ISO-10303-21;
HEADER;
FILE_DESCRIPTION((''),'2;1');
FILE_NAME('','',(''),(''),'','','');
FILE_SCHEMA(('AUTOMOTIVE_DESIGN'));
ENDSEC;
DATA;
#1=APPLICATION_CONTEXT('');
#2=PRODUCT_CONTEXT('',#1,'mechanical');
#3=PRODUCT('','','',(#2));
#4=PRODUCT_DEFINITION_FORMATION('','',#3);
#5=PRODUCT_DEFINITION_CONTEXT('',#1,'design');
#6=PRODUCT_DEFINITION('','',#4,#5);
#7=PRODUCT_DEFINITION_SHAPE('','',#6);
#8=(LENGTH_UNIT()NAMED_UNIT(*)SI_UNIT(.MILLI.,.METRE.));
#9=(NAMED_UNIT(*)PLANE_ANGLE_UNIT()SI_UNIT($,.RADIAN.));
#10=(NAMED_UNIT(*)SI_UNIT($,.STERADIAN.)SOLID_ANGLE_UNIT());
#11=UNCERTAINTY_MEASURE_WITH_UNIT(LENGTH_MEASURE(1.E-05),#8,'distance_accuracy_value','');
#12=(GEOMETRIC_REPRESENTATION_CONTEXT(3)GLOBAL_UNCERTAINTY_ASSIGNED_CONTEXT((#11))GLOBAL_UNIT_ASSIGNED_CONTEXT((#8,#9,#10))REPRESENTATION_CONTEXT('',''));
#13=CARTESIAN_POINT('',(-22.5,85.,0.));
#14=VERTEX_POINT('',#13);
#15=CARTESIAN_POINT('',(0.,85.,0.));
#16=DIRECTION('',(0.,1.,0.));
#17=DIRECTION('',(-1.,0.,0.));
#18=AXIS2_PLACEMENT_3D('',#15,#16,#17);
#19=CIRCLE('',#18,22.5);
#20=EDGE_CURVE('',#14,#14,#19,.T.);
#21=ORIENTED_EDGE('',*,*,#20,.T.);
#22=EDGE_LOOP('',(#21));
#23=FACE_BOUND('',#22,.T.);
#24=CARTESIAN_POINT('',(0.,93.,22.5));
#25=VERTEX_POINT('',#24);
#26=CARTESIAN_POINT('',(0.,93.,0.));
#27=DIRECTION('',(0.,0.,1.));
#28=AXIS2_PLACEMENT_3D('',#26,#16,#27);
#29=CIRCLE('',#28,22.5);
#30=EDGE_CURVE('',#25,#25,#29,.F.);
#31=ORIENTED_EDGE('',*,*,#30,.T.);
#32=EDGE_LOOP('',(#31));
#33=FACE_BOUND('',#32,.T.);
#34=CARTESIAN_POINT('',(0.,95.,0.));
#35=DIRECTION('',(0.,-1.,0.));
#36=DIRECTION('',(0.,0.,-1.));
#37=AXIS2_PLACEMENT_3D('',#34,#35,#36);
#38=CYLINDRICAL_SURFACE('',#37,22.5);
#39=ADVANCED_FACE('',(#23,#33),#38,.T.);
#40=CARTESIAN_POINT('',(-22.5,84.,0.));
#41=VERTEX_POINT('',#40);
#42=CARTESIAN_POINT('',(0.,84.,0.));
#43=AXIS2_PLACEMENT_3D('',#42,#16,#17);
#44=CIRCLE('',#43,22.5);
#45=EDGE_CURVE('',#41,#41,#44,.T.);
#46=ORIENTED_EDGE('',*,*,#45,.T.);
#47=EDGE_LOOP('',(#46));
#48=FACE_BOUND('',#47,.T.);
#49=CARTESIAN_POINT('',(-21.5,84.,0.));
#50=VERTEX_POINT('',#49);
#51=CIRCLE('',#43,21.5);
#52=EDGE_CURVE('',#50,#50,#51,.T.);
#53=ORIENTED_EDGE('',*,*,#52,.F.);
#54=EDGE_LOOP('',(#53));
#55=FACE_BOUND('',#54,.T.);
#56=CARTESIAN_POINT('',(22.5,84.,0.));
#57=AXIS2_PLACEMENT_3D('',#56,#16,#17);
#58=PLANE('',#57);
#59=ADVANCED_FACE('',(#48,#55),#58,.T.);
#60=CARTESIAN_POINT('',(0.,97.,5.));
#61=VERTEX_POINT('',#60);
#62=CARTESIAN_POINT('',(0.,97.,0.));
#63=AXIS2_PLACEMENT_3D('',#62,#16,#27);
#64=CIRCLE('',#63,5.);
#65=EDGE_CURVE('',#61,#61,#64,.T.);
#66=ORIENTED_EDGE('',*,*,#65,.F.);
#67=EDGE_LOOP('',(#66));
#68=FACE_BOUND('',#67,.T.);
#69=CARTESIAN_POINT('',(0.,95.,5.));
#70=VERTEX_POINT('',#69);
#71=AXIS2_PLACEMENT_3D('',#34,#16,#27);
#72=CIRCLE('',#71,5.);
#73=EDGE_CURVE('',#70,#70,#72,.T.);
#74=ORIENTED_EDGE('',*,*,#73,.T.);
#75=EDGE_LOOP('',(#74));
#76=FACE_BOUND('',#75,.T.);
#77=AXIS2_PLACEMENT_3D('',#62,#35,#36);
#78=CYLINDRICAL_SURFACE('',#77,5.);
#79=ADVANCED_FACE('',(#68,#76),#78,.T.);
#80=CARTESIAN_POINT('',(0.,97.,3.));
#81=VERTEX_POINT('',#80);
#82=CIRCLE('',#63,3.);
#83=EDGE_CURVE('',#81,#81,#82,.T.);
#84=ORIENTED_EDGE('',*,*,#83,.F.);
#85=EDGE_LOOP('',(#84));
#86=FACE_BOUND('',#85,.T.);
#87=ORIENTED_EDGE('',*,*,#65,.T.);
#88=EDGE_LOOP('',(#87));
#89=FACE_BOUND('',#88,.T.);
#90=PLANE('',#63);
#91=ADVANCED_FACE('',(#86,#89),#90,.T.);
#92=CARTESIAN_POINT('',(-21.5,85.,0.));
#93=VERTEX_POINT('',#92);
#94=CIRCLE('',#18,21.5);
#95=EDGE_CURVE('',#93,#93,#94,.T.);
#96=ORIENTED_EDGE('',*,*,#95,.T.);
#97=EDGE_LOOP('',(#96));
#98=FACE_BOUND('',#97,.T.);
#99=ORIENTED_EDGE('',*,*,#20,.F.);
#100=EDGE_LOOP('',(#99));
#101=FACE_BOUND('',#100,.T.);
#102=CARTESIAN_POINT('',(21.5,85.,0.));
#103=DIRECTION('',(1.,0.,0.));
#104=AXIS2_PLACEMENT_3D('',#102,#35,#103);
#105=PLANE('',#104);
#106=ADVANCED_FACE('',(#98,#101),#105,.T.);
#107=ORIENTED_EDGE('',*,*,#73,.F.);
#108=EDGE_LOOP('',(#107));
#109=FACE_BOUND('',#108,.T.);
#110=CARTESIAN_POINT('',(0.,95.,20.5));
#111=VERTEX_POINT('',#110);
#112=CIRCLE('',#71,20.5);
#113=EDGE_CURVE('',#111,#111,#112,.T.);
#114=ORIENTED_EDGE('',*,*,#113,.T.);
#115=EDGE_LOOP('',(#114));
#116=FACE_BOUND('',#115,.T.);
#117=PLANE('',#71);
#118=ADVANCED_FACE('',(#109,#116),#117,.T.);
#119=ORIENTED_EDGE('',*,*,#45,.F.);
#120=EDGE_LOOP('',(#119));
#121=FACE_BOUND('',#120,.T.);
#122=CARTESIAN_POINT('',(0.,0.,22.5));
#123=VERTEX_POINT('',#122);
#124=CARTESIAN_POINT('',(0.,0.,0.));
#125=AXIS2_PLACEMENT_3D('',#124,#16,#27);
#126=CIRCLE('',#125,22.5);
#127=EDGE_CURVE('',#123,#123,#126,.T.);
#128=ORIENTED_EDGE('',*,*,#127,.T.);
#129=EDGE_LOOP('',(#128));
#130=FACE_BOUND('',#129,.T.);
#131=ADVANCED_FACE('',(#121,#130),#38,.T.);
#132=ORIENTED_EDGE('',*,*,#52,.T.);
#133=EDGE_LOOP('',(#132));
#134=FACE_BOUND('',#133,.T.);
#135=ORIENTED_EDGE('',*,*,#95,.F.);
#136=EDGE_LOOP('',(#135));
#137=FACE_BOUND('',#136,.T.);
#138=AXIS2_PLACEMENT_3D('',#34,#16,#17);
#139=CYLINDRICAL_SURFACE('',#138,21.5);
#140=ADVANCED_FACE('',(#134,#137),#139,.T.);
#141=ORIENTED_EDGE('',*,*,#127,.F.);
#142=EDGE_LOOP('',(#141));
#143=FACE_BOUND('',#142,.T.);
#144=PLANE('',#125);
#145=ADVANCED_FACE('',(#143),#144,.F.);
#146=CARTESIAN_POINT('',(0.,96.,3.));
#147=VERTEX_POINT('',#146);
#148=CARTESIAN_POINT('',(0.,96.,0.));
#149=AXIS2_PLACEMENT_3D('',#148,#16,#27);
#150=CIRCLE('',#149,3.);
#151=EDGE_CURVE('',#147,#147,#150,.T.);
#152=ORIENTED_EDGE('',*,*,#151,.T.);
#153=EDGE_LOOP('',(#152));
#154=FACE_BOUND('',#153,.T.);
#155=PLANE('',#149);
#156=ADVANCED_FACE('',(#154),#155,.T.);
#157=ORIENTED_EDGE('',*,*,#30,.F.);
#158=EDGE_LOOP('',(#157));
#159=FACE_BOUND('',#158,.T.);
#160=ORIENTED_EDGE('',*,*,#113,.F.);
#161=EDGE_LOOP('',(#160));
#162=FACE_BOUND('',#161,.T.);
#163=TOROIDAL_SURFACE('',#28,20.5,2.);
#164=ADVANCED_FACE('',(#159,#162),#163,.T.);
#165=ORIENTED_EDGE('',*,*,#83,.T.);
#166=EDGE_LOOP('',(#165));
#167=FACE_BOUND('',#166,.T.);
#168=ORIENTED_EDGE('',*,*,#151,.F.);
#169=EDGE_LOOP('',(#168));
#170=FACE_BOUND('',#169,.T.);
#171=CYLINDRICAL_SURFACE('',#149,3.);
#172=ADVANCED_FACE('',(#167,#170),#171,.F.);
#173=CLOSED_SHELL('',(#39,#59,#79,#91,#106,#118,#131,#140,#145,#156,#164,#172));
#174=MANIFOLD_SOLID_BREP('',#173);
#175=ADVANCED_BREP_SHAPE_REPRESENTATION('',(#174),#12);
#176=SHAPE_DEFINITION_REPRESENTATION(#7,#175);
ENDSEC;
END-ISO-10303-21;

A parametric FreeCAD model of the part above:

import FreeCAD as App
import Part
import Sketcher

V = App.Vector
Q = App.Units.Quantity


def edges_at(feature, points):
    """Names of the edges that pass closest to the given points."""
    edges = feature.Shape.Edges
    near = lambda p: min(range(len(edges)), key=lambda i: edges[i].distToShape(Part.Vertex(*p))[0])
    return sorted({f"Edge{near(p) + 1}" for p in points})


def add_polygon(sketch, points):
    """Adds a closed chain of lines whose ends are joined by coincident constraints."""
    first, n = sketch.GeometryCount, len(points)
    for a, b in zip(points, points[1:] + points[:1]):
        sketch.addGeometry(Part.LineSegment(App.Vector(*a, 0), App.Vector(*b, 0)), False)
    for i in range(n):
        sketch.addConstraint(Sketcher.Constraint("Coincident", first + i, 2, first + (i + 1) % n, 1))

doc = App.newDocument("Part")
params = doc.addObject("Spreadsheet::Sheet", "Params")
for row, (alias, value) in enumerate([
    ("sketch1_diameter", "45 mm"),
    ("pad1_length", "95 mm"),
    ("sketch2_width", "1 mm"),
    ("groove_angle", "360 deg"),
    ("fillet_radius", "2 mm"),
    ("sketch3_diameter", "10 mm"),
    ("pad2_length", "2 mm"),
    ("sketch4_diameter", "6 mm"),
    ("pocket1_length", "1 mm"),
], start=1):
    params.set(f"A{row}", alias)
    params.set(f"B{row}", "=" + value)
    params.setAlias(f"B{row}", alias)

body = doc.addObject("PartDesign::Body", "Body")

# Sketch on XZ plane
sketch1 = body.newObject("Sketcher::SketchObject", "Sketch")
sketch1.AttachmentSupport = (doc.getObject("XZ_Plane"), [""])
sketch1.MapMode = "FlatFace"
sketch1.addGeometry(Part.Circle(V(0, 0, 0), V(0, 0, 1), 22), False)
sketch1.addConstraint([
    Sketcher.Constraint("Coincident", 0, 3, -1, 1),
    Sketcher.Constraint("Diameter", 0, Q("45 mm")),
])
sketch1.setExpression("Constraints[1]", "Params.sketch1_diameter")
pad1 = body.newObject("PartDesign::Pad", "Pad")
pad1.Profile = sketch1
pad1.setExpression("Length", "Params.pad1_length")
pad1.Reversed = True

# Sketch on XY plane
sketch2 = body.newObject("Sketcher::SketchObject", "Sketch001")
sketch2.AttachmentSupport = (doc.getObject("XY_Plane"), [""])
sketch2.MapMode = "FlatFace"
add_polygon(sketch2, [(21.5, 85), (21.5, 84), (22.5, 84), (22.5, 85)])  # lines 0-3
sketch2.addConstraint([
    Sketcher.Constraint("Vertical", 0),
    Sketcher.Constraint("Horizontal", 1),
    Sketcher.Constraint("Vertical", 2),
    Sketcher.Constraint("Horizontal", 3),
    Sketcher.Constraint("Equal", 3, 0),
    Sketcher.Constraint("DistanceX", 1, 1, 1, 2, Q("1 mm")),
    Sketcher.Constraint("DistanceY", -1, 1, 0, 2, Q("84 mm")),
    Sketcher.Constraint("DistanceX", -1, 1, 0, 2, Q("21.5 mm")),
])
sketch2.setExpression("Constraints[9]", "Params.sketch2_width")
groove = body.newObject("PartDesign::Groove", "Groove")
groove.Profile = sketch2
groove.ReferenceAxis = (sketch2, ["V_Axis"])
groove.setExpression("Angle", "Params.groove_angle")
doc.recompute()

fillet = body.newObject("PartDesign::Fillet", "Fillet")
fillet.Base = (groove, edges_at(groove, [(0, 95, -22.5)]))
fillet.setExpression("Radius", "Params.fillet_radius")

# Sketch on XZ plane
sketch3 = body.newObject("Sketcher::SketchObject", "Sketch002")
sketch3.AttachmentSupport = (doc.getObject("XZ_Plane"), [""])
sketch3.MapMode = "FlatFace"
sketch3.AttachmentOffset = App.Placement(V(0, 0, -95), App.Rotation())
sketch3.addGeometry(Part.Circle(V(0, 0, 0), V(0, 0, 1), 5), False)
sketch3.addConstraint([
    Sketcher.Constraint("Coincident", 0, 3, -1, 1),
    Sketcher.Constraint("Diameter", 0, Q("10 mm")),
])
sketch3.setExpression("Constraints[1]", "Params.sketch3_diameter")
pad2 = body.newObject("PartDesign::Pad", "Pad001")
pad2.Profile = sketch3
pad2.setExpression("Length", "Params.pad2_length")
pad2.Reversed = True

# Sketch on XZ plane
sketch4 = body.newObject("Sketcher::SketchObject", "Sketch003")
sketch4.AttachmentSupport = (doc.getObject("XZ_Plane"), [""])
sketch4.MapMode = "FlatFace"
sketch4.AttachmentOffset = App.Placement(V(0, 0, -97), App.Rotation())
sketch4.addGeometry(Part.Circle(V(0, 0, 0), V(0, 0, 1), 3), False)
sketch4.addConstraint([
    Sketcher.Constraint("Coincident", 0, 3, -1, 1),
    Sketcher.Constraint("Diameter", 0, Q("6 mm")),
])
sketch4.setExpression("Constraints[1]", "Params.sketch4_diameter")
pocket1 = body.newObject("PartDesign::Pocket", "Pocket")
pocket1.Profile = sketch4
pocket1.setExpression("Length", "Params.pocket1_length")
pocket1.Reversed = True

doc.recompute()
